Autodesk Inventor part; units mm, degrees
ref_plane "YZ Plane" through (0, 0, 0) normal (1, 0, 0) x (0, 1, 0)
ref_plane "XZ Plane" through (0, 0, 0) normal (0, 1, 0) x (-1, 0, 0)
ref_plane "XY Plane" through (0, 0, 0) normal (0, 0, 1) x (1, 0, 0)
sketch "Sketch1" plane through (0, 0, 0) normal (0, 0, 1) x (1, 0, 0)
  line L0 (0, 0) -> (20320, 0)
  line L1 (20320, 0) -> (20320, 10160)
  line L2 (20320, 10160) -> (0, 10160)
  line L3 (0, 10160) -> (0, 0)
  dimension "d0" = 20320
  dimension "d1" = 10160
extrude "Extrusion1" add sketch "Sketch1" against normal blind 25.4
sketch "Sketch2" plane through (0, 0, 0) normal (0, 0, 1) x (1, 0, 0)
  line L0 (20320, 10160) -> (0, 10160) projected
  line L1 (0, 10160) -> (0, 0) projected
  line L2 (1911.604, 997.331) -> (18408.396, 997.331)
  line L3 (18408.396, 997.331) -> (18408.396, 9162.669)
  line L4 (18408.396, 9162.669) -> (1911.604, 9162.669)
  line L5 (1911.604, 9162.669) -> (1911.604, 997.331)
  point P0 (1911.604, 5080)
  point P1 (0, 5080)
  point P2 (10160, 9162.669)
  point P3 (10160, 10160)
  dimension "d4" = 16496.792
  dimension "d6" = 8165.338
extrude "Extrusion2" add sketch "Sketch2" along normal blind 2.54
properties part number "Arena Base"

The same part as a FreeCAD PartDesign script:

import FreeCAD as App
import Part
import Sketcher
Q = App.Units.Quantity


def add_polygon(sketch, points):
    """Adds a closed chain of lines whose ends are joined by coincident constraints."""
    first, n = sketch.GeometryCount, len(points)
    for a, b in zip(points, points[1:] + points[:1]):
        sketch.addGeometry(Part.LineSegment(App.Vector(*a, 0), App.Vector(*b, 0)), False)
    for i in range(n):
        sketch.addConstraint(Sketcher.Constraint("Coincident", first + i, 2, first + (i + 1) % n, 1))

doc = App.newDocument("Part")
body = doc.addObject("PartDesign::Body", "Body")

# Sketch on XY plane
sketch1 = body.newObject("Sketcher::SketchObject", "Sketch")
sketch1.AttachmentSupport = (doc.getObject("XY_Plane"), [""])
sketch1.MapMode = "FlatFace"
add_polygon(sketch1, [(0, 10160), (0, 0), (20320, 0), (20320, 10160)])  # lines 0-3
sketch1.addConstraint([
    Sketcher.Constraint("Vertical", 0),
    Sketcher.Constraint("Horizontal", 1),
    Sketcher.Constraint("Vertical", 2),
    Sketcher.Constraint("Horizontal", 3),
    Sketcher.Constraint("Coincident", 0, 2, -1, 1),
    Sketcher.Constraint("DistanceX", 1, 1, 1, 2, Q("800 in")),
    Sketcher.Constraint("DistanceY", 0, 2, 0, 1, Q("400 in")),
])
pad1 = body.newObject("PartDesign::Pad", "Pad")
pad1.Profile = sketch1
pad1.Length = Q("1 in")
pad1.Reversed = True

# Sketch on XY plane
sketch2 = body.newObject("Sketcher::SketchObject", "Sketch001")
sketch2.AttachmentSupport = (doc.getObject("XY_Plane"), [""])
sketch2.MapMode = "FlatFace"
add_polygon(sketch2, [(1912, 9163), (1912, 997), (18408, 997), (18408, 9163)])  # lines 0-3
sketch2.addConstraint([
    Sketcher.Constraint("Vertical", 0),
    Sketcher.Constraint("Horizontal", 1),
    Sketcher.Constraint("Vertical", 2),
    Sketcher.Constraint("Horizontal", 3),
    Sketcher.Constraint("DistanceX", 1, 1, 1, 2, Q("649.48 in")),
    Sketcher.Constraint("DistanceY", 0, 2, 0, 1, Q("321.47 in")),
    Sketcher.Constraint("DistanceX", -1, 1, 0, 2, Q("75.26 in")),
    Sketcher.Constraint("DistanceY", -1, 1, 0, 2, Q("39.265 in")),
])
pad2 = body.newObject("PartDesign::Pad", "Pad001")
pad2.Profile = sketch2
pad2.Length = Q("0.1 in")

doc.recompute()
